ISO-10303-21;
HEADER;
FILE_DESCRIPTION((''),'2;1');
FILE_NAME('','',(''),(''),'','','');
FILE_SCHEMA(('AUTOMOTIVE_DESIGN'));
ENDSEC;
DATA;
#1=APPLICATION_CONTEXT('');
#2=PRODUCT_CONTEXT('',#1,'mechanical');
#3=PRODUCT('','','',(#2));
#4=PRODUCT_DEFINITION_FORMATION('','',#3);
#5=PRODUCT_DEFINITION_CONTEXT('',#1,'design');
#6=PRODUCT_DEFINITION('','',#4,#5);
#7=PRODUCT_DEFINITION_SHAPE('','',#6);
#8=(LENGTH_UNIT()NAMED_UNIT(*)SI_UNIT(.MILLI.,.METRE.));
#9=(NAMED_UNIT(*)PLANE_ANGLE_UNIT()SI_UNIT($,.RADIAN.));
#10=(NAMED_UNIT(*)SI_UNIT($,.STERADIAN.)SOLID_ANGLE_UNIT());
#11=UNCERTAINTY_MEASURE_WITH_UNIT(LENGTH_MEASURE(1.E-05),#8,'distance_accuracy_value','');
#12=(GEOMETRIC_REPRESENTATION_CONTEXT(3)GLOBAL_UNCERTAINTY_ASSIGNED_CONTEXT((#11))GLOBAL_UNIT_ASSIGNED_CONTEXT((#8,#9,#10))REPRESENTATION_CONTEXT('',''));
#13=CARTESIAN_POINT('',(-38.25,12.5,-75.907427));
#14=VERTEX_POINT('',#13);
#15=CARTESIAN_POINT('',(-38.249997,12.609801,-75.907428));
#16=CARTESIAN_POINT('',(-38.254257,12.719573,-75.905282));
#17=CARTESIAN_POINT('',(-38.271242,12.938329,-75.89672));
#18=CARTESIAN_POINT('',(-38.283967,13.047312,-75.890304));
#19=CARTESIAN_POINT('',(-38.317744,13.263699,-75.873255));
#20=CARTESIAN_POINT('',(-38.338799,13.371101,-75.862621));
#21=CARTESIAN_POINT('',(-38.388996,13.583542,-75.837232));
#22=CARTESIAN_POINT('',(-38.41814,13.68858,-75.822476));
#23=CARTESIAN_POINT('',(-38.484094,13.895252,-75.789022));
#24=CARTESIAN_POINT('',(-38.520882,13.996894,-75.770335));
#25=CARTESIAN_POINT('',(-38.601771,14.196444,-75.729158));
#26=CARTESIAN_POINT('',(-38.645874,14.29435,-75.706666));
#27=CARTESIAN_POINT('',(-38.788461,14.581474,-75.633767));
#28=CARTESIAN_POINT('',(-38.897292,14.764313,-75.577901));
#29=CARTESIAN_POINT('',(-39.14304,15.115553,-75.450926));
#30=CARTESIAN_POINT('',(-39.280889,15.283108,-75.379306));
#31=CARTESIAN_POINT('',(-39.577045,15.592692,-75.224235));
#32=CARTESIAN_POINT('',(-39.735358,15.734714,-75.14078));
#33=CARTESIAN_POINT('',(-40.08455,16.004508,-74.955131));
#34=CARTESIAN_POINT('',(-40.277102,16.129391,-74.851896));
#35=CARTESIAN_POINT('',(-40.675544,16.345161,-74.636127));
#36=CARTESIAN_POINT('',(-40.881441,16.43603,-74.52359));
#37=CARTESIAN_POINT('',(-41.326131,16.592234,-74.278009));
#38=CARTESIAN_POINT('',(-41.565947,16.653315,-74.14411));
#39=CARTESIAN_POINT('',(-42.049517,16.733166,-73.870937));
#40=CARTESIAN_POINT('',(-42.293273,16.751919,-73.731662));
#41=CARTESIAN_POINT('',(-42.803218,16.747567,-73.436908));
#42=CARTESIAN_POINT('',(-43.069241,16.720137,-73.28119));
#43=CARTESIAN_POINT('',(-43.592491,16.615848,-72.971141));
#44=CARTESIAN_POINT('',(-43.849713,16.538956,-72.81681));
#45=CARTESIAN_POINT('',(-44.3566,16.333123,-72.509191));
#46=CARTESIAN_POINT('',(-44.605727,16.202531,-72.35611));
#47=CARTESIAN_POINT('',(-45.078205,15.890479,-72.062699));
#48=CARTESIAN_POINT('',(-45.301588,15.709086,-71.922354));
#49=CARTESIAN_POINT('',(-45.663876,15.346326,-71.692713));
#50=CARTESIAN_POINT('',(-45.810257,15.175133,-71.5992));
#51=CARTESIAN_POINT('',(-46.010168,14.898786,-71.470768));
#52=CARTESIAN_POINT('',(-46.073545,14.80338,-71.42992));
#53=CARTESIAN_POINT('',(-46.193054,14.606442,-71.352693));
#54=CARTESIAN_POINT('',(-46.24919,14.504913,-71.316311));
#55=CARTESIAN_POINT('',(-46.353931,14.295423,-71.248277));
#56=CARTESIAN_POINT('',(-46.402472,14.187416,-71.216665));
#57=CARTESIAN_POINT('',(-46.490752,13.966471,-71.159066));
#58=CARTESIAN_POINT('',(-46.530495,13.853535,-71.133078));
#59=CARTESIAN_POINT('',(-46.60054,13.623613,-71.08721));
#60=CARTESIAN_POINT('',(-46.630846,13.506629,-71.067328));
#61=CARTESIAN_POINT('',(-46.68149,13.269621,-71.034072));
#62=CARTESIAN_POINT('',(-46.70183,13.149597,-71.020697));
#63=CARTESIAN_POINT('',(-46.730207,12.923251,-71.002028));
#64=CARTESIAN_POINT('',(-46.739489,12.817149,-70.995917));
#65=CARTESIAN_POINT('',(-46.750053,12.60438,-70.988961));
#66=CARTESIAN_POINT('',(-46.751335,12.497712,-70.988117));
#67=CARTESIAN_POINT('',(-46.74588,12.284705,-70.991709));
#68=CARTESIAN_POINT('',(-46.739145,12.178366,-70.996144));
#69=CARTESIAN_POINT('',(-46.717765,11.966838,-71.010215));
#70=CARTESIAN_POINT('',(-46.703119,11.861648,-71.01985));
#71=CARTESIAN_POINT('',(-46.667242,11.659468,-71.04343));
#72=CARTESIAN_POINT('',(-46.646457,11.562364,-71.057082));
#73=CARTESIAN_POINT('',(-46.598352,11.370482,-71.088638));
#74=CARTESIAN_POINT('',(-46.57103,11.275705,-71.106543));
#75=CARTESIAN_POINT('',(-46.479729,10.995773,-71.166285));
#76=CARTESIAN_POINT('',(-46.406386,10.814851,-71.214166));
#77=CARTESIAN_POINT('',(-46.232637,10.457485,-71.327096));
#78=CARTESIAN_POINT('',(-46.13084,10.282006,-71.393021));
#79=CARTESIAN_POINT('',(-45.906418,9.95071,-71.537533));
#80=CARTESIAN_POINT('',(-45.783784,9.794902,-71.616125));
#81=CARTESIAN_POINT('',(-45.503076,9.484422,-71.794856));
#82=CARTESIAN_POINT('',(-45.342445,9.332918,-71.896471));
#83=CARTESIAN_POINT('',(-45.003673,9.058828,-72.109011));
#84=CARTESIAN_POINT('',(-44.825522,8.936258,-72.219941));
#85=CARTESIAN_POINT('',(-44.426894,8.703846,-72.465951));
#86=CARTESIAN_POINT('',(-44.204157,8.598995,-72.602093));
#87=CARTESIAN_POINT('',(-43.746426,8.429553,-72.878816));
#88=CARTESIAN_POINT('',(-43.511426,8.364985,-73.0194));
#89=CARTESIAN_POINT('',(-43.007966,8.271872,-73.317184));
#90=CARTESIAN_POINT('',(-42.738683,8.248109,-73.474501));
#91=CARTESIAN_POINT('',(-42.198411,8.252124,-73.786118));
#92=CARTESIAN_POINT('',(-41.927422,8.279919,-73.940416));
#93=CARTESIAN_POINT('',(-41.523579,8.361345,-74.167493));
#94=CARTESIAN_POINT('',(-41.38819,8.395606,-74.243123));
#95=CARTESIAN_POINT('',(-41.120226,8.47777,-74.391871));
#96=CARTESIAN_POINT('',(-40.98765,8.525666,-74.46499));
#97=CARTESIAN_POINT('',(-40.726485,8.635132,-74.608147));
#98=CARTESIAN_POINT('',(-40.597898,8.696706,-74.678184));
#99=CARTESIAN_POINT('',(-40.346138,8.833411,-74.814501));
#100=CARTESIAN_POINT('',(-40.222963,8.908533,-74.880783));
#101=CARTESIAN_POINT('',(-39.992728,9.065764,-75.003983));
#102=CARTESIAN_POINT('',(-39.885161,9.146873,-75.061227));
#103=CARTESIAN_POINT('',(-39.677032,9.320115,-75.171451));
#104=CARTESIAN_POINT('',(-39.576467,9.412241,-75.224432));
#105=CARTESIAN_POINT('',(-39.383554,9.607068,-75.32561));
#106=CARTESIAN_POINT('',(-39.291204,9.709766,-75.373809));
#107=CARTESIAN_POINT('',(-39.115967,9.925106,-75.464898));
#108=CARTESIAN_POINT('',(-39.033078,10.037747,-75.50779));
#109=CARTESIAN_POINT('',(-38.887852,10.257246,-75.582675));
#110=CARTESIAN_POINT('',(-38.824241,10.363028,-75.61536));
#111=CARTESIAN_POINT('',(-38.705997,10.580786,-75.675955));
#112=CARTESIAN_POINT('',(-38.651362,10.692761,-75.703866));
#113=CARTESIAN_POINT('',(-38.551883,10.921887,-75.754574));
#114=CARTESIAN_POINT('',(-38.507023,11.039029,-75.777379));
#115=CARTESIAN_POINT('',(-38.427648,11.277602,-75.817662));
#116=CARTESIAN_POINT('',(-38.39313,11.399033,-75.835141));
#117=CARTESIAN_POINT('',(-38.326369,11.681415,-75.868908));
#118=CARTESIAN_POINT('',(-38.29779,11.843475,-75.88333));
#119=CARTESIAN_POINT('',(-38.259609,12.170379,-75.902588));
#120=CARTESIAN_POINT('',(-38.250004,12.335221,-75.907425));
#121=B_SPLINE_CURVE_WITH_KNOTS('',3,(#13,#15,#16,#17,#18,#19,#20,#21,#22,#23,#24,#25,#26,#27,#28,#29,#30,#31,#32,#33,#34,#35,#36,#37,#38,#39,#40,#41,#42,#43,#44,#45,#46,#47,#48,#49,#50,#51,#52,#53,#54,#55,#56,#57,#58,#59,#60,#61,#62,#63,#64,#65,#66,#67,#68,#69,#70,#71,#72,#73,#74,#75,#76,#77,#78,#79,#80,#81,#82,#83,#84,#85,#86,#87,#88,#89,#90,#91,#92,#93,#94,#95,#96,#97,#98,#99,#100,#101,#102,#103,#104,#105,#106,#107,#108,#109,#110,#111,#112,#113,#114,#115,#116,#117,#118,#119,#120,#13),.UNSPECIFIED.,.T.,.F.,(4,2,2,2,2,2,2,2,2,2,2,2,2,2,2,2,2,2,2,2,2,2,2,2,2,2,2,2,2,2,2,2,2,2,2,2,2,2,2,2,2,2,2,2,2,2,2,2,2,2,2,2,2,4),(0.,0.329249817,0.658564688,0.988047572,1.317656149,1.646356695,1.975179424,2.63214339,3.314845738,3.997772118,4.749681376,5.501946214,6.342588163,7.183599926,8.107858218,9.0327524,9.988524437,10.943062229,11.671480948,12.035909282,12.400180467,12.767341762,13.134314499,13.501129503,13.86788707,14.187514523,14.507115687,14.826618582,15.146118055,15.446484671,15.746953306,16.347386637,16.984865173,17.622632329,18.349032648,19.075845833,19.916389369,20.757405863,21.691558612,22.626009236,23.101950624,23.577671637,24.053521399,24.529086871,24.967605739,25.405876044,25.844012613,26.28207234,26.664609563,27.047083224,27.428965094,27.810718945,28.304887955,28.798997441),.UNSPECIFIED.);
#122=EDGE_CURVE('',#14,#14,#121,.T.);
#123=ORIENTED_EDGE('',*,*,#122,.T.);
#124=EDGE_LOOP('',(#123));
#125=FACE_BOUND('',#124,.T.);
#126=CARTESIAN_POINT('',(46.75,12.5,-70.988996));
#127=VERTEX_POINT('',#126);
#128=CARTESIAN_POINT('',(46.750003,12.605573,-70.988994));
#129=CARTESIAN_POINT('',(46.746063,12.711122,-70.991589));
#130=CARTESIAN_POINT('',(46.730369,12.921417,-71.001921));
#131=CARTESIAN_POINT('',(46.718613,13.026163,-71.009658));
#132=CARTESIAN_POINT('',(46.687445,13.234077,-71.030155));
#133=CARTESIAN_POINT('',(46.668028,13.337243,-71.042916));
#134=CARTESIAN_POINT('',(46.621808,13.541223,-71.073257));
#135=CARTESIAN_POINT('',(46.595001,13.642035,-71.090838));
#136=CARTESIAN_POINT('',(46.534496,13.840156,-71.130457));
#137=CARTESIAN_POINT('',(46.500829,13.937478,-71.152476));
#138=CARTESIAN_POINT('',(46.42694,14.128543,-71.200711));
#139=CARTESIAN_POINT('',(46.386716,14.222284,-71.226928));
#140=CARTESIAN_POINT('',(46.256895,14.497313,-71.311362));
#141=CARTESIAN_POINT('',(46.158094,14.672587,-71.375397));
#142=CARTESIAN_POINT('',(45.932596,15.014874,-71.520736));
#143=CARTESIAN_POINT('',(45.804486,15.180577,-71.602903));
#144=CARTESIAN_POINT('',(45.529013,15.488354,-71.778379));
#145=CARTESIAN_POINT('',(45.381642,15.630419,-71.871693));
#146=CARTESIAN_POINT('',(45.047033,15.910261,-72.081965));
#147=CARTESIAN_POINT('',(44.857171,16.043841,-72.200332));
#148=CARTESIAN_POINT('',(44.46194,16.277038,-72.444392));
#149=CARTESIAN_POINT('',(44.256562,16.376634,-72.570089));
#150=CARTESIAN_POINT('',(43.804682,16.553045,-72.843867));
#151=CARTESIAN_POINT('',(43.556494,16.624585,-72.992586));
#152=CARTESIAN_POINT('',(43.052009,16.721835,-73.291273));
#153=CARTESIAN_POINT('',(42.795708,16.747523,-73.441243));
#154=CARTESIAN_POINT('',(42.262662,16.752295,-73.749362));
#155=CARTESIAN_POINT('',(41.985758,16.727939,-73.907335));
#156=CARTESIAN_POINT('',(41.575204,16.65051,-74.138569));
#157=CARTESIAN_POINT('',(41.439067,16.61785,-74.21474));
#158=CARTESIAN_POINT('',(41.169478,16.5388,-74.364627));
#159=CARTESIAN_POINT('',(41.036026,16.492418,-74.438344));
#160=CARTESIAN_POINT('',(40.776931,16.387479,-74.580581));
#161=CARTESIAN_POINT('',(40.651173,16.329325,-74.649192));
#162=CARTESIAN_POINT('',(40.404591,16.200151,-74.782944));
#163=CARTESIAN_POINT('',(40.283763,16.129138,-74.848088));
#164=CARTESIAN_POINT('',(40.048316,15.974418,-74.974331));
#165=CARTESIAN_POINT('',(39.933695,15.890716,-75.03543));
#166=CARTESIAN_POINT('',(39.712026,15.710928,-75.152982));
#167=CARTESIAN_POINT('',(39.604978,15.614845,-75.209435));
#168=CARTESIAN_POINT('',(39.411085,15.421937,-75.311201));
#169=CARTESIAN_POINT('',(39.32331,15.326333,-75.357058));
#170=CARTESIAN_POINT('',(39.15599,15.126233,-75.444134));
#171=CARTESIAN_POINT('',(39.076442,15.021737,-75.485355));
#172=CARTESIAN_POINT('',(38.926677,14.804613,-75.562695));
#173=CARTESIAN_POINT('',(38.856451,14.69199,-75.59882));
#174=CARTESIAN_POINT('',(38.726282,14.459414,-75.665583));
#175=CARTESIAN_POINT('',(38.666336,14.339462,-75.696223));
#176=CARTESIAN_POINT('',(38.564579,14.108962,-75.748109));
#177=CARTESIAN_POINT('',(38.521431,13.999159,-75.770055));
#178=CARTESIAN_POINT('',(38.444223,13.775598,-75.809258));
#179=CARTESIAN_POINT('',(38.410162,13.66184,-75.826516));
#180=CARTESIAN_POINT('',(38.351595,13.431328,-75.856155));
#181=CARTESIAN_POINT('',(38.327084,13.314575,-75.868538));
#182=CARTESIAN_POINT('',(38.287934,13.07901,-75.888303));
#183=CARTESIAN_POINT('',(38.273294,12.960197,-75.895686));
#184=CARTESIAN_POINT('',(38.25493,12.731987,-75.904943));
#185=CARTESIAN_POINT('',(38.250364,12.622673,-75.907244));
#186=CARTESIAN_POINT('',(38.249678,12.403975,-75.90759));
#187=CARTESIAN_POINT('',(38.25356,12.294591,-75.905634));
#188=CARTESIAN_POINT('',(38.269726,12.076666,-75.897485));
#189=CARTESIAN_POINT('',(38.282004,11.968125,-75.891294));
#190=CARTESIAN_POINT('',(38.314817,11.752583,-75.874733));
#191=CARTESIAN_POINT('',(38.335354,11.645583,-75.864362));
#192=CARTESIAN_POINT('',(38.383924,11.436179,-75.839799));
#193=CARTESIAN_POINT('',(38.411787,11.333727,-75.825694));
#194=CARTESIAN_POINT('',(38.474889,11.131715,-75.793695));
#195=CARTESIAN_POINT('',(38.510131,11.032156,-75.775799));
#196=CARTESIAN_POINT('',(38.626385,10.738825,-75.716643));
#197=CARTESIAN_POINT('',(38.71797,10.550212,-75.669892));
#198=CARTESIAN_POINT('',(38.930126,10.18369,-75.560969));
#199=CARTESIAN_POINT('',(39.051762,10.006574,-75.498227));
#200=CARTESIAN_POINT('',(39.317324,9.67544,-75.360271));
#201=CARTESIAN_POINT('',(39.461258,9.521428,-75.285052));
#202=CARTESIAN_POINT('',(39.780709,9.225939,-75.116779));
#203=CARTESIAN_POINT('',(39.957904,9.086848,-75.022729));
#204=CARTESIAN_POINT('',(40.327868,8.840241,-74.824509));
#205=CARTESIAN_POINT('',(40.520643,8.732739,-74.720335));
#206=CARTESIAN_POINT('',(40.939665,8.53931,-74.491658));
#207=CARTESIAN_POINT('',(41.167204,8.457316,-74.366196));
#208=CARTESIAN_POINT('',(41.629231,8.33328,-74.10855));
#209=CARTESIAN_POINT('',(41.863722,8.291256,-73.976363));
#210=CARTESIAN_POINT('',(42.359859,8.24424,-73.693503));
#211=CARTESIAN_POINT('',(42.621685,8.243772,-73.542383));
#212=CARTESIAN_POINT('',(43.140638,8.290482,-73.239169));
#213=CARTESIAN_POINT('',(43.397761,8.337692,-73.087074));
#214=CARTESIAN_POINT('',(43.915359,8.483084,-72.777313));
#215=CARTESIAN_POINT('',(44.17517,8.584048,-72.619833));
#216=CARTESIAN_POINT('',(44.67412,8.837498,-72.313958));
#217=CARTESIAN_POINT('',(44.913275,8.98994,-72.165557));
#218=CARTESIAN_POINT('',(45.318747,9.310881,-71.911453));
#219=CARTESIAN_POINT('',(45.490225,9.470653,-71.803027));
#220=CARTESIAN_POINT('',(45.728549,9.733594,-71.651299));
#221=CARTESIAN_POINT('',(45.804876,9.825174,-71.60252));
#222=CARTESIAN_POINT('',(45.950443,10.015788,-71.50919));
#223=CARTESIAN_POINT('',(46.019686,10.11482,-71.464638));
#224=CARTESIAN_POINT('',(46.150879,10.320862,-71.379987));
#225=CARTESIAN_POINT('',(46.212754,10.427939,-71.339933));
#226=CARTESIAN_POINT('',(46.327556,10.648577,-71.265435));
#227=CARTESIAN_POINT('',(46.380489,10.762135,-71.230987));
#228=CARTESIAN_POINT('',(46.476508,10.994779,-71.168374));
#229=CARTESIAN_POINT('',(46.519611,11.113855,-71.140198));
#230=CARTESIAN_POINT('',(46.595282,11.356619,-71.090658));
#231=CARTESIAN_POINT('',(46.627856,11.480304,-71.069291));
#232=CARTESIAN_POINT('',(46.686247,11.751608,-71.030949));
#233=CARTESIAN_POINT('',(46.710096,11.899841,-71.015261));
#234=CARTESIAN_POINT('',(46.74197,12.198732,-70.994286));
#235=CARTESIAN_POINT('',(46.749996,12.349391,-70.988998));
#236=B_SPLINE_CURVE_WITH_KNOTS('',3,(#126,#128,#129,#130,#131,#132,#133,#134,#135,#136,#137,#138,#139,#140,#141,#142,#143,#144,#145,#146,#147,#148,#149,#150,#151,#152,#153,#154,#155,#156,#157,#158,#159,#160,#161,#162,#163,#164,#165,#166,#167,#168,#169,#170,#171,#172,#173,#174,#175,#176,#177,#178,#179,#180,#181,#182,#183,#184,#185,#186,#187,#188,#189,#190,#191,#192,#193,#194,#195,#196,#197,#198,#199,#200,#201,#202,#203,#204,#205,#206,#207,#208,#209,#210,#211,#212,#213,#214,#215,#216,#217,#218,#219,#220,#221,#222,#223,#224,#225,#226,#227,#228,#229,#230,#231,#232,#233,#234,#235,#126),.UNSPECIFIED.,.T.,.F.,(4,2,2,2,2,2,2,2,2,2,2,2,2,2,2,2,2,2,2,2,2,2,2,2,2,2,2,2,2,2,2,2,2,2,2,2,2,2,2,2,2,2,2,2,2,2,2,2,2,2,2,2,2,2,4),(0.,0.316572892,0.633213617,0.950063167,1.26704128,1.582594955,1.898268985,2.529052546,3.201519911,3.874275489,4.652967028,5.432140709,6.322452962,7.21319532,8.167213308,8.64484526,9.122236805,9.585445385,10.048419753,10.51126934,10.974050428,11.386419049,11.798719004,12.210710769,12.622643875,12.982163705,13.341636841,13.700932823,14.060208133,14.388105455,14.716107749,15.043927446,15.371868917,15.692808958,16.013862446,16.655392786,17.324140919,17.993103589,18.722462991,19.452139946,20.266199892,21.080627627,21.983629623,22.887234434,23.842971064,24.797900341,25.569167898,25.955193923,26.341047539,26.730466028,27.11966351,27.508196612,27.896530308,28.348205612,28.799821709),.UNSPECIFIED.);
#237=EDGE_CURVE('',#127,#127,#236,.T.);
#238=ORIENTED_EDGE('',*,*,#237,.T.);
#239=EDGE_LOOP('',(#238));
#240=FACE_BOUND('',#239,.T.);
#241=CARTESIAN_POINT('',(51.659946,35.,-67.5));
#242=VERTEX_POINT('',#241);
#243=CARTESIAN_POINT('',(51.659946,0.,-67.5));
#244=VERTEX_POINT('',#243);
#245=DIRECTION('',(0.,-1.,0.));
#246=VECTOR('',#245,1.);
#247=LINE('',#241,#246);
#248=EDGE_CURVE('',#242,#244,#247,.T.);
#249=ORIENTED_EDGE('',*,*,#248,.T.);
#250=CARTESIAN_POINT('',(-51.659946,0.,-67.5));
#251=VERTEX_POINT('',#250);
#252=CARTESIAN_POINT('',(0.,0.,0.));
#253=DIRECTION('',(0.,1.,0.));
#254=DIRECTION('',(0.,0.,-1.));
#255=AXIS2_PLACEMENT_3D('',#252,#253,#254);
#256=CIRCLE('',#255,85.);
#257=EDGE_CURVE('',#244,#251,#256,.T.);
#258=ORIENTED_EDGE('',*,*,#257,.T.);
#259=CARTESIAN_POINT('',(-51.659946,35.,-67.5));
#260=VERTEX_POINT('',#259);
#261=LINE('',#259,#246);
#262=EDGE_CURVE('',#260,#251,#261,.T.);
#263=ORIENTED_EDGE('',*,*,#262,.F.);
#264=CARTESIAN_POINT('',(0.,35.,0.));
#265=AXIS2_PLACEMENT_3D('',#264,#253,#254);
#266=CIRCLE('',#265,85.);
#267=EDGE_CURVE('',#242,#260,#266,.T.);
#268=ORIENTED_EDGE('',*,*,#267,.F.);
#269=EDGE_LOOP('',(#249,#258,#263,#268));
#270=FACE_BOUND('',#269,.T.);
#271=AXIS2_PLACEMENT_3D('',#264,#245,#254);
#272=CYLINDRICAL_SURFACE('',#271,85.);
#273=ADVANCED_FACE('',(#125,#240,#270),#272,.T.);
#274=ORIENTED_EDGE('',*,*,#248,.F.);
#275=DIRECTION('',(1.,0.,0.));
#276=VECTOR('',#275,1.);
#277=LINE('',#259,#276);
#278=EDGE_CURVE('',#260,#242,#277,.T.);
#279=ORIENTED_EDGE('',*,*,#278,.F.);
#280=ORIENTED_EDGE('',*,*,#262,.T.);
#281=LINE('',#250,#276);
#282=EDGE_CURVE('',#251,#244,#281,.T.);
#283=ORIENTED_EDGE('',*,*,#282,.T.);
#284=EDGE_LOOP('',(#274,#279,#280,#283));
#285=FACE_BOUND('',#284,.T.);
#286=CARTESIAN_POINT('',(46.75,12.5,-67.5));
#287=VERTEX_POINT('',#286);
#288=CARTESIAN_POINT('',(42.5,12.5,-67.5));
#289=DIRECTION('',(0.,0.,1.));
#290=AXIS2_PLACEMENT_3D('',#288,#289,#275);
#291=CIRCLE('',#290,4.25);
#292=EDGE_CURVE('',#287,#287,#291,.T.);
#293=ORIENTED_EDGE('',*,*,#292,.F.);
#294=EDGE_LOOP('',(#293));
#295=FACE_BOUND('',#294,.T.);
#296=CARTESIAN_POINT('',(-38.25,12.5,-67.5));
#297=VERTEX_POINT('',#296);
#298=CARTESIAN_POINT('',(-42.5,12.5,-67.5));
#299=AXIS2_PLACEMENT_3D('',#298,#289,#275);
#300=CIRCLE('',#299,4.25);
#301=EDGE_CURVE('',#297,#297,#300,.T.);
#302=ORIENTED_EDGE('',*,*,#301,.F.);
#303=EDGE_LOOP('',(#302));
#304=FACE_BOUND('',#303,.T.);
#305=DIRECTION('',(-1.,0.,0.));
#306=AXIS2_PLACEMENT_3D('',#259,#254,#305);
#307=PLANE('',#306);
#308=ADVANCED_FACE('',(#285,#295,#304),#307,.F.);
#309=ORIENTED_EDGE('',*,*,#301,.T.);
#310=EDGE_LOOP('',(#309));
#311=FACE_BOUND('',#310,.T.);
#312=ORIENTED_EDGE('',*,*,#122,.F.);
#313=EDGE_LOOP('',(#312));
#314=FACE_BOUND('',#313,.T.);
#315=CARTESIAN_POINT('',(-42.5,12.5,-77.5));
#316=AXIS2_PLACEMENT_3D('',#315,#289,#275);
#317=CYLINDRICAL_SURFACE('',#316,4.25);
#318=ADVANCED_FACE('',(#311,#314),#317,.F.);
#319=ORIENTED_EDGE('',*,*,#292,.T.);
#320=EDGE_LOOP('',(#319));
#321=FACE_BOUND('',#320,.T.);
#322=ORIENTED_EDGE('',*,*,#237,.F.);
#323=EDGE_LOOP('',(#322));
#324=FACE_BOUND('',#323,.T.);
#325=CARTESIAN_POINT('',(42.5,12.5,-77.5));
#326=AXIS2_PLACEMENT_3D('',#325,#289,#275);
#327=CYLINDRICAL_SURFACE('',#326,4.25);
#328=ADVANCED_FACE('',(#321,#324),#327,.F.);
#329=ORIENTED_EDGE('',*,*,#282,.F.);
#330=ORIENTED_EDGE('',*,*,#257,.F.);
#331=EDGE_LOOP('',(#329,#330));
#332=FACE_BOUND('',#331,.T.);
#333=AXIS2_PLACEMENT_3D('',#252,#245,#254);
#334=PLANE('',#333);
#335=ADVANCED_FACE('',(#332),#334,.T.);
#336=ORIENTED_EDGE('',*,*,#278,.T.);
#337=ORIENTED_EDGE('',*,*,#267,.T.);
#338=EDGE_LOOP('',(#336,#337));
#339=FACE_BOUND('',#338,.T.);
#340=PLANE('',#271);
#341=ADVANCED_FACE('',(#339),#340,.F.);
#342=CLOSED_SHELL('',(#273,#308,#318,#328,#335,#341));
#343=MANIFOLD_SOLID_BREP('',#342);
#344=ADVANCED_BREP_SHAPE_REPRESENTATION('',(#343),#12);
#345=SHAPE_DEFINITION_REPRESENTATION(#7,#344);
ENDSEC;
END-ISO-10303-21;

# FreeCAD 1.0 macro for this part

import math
import FreeCAD as App
import Part
import Sketcher
from FreeCAD import Vector
Q = App.Units.Quantity

doc = App.newDocument("Part")
body = doc.addObject("PartDesign::Body", "Body")

sketch1 = body.newObject("Sketcher::SketchObject", "Sketch")
sketch1.AttachmentSupport = (doc.getObject("XZ_Plane"), [""])
sketch1.MapMode = "FlatFace"
sketch1.addGeometry([
    Part.LineSegment(Vector(-52, -68, 0), Vector(52, -68, 0)),
    Part.ArcOfCircle(Part.Circle(Vector(0, 0, 0), Vector(0, 0, 1), 85), math.radians(-127), math.radians(-53)),
], False)
sketch1.addConstraint([
    Sketcher.Constraint("Coincident", 0, 1, 1, 1),
    Sketcher.Constraint("Coincident", 1, 2, 0, 2),
    Sketcher.Constraint("Horizontal", 0),
    Sketcher.Constraint("Coincident", 1, 3, -1, 1),
    Sketcher.Constraint("Radius", 1, Q("85 mm")),
    Sketcher.Constraint("DistanceY", 0, 1, -1, 1, Q("67.5 mm")),
])
pad1 = body.newObject("PartDesign::Pad", "Pad")
pad1.Profile = sketch1
pad1.Length = 35
pad1.Reversed = True

sketch2 = body.newObject("Sketcher::SketchObject", "Sketch001")
sketch2.AttachmentSupport = (doc.getObject("XY_Plane"), [""])
sketch2.MapMode = "FlatFace"
sketch2.AttachmentOffset = App.Placement(Vector(0, 0, -67.5), App.Rotation())
sketch2.addGeometry([
    Part.Circle(Vector(-42.5, 12.5, 0), Vector(0, 0, 1), 4.2),
    Part.Circle(Vector(42.5, 12.5, 0), Vector(0, 0, 1), 4.2),
], False)
sketch2.addConstraint([
    Sketcher.Constraint("Equal", 0, 1),
    Sketcher.Constraint("Symmetric", 0, 3, 1, 3, -2),
    Sketcher.Constraint("Diameter", 0, Q("8.5 mm")),
    Sketcher.Constraint("DistanceX", 0, 3, 1, 3, Q("85 mm")),
    Sketcher.Constraint("DistanceY", -1, 1, 0, 3, Q("12.5 mm")),
])
pocket1 = body.newObject("PartDesign::Pocket", "Pocket")
pocket1.Profile = sketch2
pocket1.Length = 10

doc.recompute()
